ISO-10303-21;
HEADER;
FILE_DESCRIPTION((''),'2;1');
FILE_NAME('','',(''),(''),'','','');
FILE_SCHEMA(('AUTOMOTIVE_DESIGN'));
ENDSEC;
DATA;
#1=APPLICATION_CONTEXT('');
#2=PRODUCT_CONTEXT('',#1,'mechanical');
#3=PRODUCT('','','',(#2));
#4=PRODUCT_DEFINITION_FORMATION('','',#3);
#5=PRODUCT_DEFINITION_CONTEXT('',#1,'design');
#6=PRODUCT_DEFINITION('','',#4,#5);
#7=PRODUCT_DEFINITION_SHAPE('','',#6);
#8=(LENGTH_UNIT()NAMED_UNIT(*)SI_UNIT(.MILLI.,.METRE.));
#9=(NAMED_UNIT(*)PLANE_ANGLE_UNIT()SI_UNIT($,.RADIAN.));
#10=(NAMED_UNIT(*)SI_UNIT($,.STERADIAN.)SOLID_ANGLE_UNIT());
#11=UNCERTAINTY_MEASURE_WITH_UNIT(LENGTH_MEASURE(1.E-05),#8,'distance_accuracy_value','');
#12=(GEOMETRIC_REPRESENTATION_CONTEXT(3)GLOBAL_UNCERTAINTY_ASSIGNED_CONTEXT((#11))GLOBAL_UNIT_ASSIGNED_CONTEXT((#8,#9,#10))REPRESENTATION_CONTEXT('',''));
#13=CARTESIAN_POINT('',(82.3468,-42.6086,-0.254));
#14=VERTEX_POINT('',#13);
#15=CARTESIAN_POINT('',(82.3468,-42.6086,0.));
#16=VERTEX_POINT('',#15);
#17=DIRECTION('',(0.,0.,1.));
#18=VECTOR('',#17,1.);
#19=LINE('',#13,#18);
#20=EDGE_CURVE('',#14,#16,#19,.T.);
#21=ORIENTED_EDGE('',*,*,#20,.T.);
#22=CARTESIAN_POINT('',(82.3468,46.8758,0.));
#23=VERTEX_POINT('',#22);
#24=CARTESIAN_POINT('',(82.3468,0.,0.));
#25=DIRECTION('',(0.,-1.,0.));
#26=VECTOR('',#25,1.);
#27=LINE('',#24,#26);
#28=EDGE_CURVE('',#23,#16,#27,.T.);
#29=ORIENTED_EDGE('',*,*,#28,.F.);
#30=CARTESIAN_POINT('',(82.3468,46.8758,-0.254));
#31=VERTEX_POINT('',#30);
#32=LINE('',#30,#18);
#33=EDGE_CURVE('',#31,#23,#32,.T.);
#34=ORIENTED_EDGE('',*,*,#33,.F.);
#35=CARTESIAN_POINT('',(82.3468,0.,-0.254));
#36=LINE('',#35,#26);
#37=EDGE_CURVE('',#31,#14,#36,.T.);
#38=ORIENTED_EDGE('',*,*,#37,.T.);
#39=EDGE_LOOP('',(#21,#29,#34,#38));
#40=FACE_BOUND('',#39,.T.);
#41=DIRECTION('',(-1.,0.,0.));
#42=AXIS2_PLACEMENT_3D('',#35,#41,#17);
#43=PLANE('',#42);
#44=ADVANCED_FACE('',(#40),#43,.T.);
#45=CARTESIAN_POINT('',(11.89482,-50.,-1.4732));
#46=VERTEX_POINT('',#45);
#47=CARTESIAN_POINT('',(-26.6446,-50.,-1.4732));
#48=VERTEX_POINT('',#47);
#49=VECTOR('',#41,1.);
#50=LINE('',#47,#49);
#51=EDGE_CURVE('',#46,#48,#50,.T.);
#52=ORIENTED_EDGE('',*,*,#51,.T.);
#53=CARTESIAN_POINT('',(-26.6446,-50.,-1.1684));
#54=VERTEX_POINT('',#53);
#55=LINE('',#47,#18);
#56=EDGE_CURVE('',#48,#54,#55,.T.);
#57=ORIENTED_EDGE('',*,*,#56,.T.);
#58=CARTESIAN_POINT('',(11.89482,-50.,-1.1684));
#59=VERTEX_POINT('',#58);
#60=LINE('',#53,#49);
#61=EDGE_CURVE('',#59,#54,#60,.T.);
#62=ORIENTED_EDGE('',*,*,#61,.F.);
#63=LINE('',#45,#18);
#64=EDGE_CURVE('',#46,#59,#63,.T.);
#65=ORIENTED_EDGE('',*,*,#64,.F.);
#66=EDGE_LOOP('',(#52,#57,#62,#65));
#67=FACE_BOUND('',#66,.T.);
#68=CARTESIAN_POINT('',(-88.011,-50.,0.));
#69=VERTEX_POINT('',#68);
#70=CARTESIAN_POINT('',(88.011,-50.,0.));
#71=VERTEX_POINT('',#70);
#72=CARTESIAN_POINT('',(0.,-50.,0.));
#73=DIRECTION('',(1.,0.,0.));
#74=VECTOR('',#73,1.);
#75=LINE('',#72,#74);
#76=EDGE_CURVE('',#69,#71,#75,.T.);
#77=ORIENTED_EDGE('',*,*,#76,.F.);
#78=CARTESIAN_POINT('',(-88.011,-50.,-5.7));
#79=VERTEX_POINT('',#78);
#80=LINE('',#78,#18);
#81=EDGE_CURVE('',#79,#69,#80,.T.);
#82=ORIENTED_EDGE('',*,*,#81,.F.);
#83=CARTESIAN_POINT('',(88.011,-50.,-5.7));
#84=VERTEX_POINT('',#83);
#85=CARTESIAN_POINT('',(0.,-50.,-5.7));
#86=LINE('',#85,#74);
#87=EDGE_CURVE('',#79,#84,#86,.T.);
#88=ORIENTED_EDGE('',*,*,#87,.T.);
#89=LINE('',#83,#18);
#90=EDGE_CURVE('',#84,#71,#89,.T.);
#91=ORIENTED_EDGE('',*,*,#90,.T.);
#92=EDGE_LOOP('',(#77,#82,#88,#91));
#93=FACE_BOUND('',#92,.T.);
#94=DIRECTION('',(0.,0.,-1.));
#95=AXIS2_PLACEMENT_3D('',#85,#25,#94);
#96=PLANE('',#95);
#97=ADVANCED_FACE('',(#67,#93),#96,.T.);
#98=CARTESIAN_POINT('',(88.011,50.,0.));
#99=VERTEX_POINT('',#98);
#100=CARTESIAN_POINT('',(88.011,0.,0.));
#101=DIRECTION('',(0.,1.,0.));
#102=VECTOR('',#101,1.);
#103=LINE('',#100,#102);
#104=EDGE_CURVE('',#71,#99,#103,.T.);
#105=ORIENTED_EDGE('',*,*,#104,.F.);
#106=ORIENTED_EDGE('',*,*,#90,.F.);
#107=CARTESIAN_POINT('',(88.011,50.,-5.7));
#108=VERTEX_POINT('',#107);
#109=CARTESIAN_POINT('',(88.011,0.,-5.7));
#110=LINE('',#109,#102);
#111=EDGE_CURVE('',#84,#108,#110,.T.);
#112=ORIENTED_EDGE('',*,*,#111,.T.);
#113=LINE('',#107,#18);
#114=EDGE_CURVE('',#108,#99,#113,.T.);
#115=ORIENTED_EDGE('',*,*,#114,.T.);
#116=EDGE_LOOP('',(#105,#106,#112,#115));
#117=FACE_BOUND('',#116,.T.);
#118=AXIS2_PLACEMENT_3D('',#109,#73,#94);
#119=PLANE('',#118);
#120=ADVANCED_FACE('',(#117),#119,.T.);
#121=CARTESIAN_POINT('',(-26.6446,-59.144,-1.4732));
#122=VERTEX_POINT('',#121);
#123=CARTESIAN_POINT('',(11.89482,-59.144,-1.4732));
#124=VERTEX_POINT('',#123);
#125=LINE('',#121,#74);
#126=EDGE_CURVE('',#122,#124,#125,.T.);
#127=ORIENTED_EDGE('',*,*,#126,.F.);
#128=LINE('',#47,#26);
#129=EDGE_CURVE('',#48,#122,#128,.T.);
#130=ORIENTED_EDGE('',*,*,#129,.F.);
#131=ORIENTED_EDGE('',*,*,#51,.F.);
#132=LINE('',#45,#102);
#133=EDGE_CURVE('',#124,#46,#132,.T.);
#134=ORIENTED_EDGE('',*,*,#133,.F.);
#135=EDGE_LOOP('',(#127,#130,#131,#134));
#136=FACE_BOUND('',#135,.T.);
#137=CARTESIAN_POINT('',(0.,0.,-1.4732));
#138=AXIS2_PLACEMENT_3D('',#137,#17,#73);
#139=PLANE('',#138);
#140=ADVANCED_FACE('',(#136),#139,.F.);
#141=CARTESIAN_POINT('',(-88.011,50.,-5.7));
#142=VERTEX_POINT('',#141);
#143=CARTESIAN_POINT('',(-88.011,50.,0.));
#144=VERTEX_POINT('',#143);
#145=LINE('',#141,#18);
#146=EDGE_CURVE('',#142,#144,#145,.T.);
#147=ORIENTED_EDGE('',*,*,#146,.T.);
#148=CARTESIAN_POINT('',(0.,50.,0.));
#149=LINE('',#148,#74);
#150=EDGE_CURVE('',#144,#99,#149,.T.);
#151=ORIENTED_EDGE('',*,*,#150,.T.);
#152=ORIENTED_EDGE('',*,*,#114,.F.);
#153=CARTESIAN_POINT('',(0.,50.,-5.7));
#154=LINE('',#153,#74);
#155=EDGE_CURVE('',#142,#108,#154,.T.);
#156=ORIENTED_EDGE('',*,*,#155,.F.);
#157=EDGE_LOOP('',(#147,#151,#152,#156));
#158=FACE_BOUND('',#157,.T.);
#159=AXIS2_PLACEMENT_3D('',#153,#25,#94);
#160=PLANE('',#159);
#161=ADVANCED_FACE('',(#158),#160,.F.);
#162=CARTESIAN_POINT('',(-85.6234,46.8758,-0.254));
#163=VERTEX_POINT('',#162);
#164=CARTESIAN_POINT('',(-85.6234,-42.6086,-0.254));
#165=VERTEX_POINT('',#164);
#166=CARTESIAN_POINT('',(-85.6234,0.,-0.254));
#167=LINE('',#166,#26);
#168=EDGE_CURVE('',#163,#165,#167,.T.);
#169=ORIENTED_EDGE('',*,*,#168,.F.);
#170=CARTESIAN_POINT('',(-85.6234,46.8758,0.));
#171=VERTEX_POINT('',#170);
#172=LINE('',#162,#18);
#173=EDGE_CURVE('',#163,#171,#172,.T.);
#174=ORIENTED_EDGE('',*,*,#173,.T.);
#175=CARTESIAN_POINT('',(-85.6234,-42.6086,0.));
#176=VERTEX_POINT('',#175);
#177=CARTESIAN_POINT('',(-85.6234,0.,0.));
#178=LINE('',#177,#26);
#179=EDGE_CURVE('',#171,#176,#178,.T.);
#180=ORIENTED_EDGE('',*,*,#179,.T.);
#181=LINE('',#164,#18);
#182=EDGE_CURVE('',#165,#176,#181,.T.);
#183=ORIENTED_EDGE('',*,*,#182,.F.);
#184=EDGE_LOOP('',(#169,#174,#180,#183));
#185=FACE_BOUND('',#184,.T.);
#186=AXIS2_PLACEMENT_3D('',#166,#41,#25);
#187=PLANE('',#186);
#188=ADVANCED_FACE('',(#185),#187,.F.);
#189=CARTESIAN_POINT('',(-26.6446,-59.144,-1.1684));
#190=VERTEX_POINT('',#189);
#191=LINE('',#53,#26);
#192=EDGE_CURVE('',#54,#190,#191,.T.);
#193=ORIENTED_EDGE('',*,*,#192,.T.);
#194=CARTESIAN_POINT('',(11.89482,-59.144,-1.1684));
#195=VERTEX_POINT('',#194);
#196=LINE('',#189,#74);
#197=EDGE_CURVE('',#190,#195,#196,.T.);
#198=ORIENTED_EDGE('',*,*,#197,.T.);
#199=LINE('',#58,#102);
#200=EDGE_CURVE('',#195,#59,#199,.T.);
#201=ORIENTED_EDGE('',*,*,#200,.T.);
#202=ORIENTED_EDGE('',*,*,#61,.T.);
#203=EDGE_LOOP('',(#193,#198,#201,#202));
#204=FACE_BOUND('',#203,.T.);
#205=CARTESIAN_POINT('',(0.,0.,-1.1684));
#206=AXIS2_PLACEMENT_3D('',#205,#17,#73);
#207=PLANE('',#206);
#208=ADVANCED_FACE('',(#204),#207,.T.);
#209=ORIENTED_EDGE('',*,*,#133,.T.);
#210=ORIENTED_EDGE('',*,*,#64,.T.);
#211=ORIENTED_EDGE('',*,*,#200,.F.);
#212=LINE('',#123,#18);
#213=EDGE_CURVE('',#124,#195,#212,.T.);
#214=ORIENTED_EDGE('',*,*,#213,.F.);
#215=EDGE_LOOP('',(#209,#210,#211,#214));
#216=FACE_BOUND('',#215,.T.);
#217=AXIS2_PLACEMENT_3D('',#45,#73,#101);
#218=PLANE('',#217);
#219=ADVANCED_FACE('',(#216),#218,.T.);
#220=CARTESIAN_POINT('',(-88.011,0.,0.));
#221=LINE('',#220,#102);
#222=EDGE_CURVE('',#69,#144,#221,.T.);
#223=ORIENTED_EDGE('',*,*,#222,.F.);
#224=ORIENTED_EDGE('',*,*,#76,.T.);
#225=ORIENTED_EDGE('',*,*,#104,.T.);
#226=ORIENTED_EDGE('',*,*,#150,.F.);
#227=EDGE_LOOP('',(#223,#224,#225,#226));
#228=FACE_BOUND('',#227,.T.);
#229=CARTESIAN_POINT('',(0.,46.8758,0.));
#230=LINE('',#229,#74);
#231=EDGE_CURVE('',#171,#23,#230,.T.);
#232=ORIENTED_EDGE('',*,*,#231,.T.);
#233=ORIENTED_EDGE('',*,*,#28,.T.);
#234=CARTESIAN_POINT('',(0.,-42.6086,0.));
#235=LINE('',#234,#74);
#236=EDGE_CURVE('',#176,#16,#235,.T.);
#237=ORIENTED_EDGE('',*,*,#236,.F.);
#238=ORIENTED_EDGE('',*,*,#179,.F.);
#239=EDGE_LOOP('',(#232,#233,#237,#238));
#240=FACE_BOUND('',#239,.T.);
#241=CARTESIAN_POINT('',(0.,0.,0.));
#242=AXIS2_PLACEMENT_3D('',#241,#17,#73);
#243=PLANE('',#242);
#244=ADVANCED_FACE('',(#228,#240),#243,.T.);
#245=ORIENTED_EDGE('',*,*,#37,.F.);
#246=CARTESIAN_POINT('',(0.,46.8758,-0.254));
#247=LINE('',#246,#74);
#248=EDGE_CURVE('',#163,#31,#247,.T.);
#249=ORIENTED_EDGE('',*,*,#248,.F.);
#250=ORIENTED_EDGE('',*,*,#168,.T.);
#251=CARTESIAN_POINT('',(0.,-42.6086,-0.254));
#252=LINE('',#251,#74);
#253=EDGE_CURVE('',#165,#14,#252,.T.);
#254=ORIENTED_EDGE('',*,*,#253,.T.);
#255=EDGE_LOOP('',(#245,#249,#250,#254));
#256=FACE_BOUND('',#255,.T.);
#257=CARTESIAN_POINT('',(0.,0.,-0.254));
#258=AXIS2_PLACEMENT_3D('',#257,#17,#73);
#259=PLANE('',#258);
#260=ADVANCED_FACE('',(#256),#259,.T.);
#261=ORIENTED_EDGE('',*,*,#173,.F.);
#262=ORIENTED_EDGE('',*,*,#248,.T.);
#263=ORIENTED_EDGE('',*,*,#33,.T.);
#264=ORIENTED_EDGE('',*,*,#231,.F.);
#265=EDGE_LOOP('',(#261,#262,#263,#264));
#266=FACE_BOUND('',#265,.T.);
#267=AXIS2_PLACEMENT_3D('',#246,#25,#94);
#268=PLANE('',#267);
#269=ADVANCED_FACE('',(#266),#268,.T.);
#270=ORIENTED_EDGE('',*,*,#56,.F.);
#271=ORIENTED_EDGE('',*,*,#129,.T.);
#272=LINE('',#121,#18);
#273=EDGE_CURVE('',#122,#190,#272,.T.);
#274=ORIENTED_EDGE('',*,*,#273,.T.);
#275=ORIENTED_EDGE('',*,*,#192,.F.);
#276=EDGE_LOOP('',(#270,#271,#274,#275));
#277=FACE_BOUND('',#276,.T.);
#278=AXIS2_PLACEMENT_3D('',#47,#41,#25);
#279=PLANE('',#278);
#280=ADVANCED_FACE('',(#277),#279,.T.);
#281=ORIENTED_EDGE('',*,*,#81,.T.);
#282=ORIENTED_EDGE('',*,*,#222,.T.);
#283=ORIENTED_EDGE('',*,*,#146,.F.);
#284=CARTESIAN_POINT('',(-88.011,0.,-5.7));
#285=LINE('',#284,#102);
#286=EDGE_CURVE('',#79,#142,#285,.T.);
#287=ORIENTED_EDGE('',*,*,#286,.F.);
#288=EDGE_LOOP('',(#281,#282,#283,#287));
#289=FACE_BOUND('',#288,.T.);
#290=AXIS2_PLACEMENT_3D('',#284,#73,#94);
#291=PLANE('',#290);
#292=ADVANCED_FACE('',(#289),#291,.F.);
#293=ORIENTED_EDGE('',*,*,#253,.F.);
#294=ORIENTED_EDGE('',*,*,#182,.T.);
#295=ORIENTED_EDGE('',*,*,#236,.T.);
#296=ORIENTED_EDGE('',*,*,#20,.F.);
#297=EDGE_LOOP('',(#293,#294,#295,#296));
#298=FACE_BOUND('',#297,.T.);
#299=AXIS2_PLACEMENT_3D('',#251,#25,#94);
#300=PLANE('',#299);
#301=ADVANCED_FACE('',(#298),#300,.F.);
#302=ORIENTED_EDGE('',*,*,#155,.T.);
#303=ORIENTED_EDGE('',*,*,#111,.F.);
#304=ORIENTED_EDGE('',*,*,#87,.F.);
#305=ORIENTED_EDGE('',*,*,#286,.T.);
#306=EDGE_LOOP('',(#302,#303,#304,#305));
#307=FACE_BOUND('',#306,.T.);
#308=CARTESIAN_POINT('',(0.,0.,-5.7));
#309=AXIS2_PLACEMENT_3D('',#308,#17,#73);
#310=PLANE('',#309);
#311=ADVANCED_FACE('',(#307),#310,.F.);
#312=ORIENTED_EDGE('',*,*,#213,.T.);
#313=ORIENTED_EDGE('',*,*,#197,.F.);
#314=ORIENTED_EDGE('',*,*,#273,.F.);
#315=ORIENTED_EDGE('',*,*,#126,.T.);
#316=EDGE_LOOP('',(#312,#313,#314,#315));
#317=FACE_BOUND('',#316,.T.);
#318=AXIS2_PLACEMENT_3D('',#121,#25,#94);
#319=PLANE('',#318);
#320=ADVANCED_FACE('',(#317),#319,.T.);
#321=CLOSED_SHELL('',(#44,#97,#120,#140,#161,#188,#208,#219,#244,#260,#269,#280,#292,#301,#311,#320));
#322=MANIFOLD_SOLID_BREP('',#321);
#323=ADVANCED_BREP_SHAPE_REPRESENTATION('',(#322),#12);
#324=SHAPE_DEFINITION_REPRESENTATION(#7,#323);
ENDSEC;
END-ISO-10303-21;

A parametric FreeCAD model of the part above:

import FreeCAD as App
import Part
import Sketcher
from FreeCAD import Vector
Q = App.Units.Quantity

doc = App.newDocument("Part")
params = doc.addObject("Spreadsheet::Sheet", "Params")
for row, (alias, value) in enumerate([
    ("sketch1_width", "6.93 in"),
    ("pad1_length", "5.7 mm"),
    ("sketch2_width", "6.613 in"),
    ("pocket1_length", "0.01 in"),
    ("sketch3_height", "0.36 in"),
    ("pad2_length", "0.012 in"),
], start=1):
    params.set(f"A{row}", alias)
    params.set(f"B{row}", "=" + value)
    params.setAlias(f"B{row}", alias)

body = doc.addObject("PartDesign::Body", "Body")

sketch1 = doc.addObject("Sketcher::SketchObject", "Sketch")
body.addObject(sketch1)
sketch1.AttachmentSupport = (doc.XY_Plane, [""])
sketch1.MapMode = "FlatFace"
sketch1.addGeometry([
    Part.LineSegment(Vector(-88, 50, 0), Vector(-88, -50, 0)),
    Part.LineSegment(Vector(-88, -50, 0), Vector(88, -50, 0)),
    Part.LineSegment(Vector(88, -50, 0), Vector(88, 50, 0)),
    Part.LineSegment(Vector(88, 50, 0), Vector(-88, 50, 0)),
], False)
sketch1.addConstraint([
    Sketcher.Constraint("Coincident", 0, 2, 1, 1),
    Sketcher.Constraint("Coincident", 1, 2, 2, 1),
    Sketcher.Constraint("Coincident", 2, 2, 3, 1),
    Sketcher.Constraint("Coincident", 3, 2, 0, 1),
    Sketcher.Constraint("Vertical", 0),
    Sketcher.Constraint("Horizontal", 1),
    Sketcher.Constraint("Vertical", 2),
    Sketcher.Constraint("Horizontal", 3),
    Sketcher.Constraint("Symmetric", 0, 2, 2, 2, -1, 1),
    Sketcher.Constraint("DistanceX", 1, 1, 1, 2, Q("6.93 in")),
    Sketcher.Constraint("DistanceY", 0, 2, 0, 1, Q("100 mm")),
])
sketch1.setExpression("Constraints[9]", "Params.sketch1_width")
pad1 = doc.addObject("PartDesign::Pad", "Pad")
body.addObject(pad1)
pad1.Profile = sketch1
pad1.setExpression("Length", "Params.pad1_length")
pad1.Reversed = True

sketch2 = doc.addObject("Sketcher::SketchObject", "Sketch001")
body.addObject(sketch2)
sketch2.AttachmentSupport = (doc.XY_Plane, [""])
sketch2.MapMode = "FlatFace"
sketch2.addGeometry([
    Part.LineSegment(Vector(-86, 47, 0), Vector(-86, -43, 0)),
    Part.LineSegment(Vector(-86, -43, 0), Vector(82, -43, 0)),
    Part.LineSegment(Vector(82, -43, 0), Vector(82, 47, 0)),
    Part.LineSegment(Vector(82, 47, 0), Vector(-86, 47, 0)),
], False)
sketch2.addConstraint([
    Sketcher.Constraint("Coincident", 0, 2, 1, 1),
    Sketcher.Constraint("Coincident", 1, 2, 2, 1),
    Sketcher.Constraint("Coincident", 2, 2, 3, 1),
    Sketcher.Constraint("Coincident", 3, 2, 0, 1),
    Sketcher.Constraint("Vertical", 0),
    Sketcher.Constraint("Horizontal", 1),
    Sketcher.Constraint("Vertical", 2),
    Sketcher.Constraint("Horizontal", 3),
    Sketcher.Constraint("DistanceX", 1, 1, 1, 2, Q("6.613 in")),
    Sketcher.Constraint("DistanceX", 0, 2, -1, 1, Q("3.371 in")),
    Sketcher.Constraint("DistanceY", 0, 2, 0, 1, Q("89.4844 mm")),
    Sketcher.Constraint("DistanceY", 0, 2, -1, 1, Q("42.6086 mm")),
])
sketch2.setExpression("Constraints[8]", "Params.sketch2_width")
pocket1 = doc.addObject("PartDesign::Pocket", "Pocket")
body.addObject(pocket1)
pocket1.Profile = sketch2
pocket1.setExpression("Length", "Params.pocket1_length")

sketch3 = doc.addObject("Sketcher::SketchObject", "Sketch002")
body.addObject(sketch3)
sketch3.AttachmentSupport = (doc.XY_Plane, [""])
sketch3.MapMode = "FlatFace"
sketch3.AttachmentOffset = App.Placement(Vector(0, 0, -0.046 * 25.4), App.Rotation())
sketch3.addGeometry([
    Part.LineSegment(Vector(-27, -50, 0), Vector(-27, -59, 0)),
    Part.LineSegment(Vector(-27, -59, 0), Vector(12, -59, 0)),
    Part.LineSegment(Vector(12, -59, 0), Vector(12, -50, 0)),
    Part.LineSegment(Vector(12, -50, 0), Vector(-27, -50, 0)),
], False)
sketch3.addConstraint([
    Sketcher.Constraint("Coincident", 0, 2, 1, 1),
    Sketcher.Constraint("Coincident", 1, 2, 2, 1),
    Sketcher.Constraint("Coincident", 2, 2, 3, 1),
    Sketcher.Constraint("Coincident", 3, 2, 0, 1),
    Sketcher.Constraint("Vertical", 0),
    Sketcher.Constraint("Horizontal", 1),
    Sketcher.Constraint("Vertical", 2),
    Sketcher.Constraint("Horizontal", 3),
    Sketcher.Constraint("DistanceY", 0, 2, 0, 1, Q("0.36 in")),
    Sketcher.Constraint("DistanceX", 1, 1, 1, 2, Q("1.5173 in")),
    Sketcher.Constraint("DistanceX", 0, 2, -1, 1, Q("1.049 in")),
    Sketcher.Constraint("DistanceY", 0, 2, -1, 1, Q("59.144 mm")),
])
sketch3.setExpression("Constraints[8]", "Params.sketch3_height")
pad2 = doc.addObject("PartDesign::Pad", "Pad001")
body.addObject(pad2)
pad2.Profile = sketch3
pad2.setExpression("Length", "Params.pad2_length")
pad2.Reversed = True

doc.recompute()
